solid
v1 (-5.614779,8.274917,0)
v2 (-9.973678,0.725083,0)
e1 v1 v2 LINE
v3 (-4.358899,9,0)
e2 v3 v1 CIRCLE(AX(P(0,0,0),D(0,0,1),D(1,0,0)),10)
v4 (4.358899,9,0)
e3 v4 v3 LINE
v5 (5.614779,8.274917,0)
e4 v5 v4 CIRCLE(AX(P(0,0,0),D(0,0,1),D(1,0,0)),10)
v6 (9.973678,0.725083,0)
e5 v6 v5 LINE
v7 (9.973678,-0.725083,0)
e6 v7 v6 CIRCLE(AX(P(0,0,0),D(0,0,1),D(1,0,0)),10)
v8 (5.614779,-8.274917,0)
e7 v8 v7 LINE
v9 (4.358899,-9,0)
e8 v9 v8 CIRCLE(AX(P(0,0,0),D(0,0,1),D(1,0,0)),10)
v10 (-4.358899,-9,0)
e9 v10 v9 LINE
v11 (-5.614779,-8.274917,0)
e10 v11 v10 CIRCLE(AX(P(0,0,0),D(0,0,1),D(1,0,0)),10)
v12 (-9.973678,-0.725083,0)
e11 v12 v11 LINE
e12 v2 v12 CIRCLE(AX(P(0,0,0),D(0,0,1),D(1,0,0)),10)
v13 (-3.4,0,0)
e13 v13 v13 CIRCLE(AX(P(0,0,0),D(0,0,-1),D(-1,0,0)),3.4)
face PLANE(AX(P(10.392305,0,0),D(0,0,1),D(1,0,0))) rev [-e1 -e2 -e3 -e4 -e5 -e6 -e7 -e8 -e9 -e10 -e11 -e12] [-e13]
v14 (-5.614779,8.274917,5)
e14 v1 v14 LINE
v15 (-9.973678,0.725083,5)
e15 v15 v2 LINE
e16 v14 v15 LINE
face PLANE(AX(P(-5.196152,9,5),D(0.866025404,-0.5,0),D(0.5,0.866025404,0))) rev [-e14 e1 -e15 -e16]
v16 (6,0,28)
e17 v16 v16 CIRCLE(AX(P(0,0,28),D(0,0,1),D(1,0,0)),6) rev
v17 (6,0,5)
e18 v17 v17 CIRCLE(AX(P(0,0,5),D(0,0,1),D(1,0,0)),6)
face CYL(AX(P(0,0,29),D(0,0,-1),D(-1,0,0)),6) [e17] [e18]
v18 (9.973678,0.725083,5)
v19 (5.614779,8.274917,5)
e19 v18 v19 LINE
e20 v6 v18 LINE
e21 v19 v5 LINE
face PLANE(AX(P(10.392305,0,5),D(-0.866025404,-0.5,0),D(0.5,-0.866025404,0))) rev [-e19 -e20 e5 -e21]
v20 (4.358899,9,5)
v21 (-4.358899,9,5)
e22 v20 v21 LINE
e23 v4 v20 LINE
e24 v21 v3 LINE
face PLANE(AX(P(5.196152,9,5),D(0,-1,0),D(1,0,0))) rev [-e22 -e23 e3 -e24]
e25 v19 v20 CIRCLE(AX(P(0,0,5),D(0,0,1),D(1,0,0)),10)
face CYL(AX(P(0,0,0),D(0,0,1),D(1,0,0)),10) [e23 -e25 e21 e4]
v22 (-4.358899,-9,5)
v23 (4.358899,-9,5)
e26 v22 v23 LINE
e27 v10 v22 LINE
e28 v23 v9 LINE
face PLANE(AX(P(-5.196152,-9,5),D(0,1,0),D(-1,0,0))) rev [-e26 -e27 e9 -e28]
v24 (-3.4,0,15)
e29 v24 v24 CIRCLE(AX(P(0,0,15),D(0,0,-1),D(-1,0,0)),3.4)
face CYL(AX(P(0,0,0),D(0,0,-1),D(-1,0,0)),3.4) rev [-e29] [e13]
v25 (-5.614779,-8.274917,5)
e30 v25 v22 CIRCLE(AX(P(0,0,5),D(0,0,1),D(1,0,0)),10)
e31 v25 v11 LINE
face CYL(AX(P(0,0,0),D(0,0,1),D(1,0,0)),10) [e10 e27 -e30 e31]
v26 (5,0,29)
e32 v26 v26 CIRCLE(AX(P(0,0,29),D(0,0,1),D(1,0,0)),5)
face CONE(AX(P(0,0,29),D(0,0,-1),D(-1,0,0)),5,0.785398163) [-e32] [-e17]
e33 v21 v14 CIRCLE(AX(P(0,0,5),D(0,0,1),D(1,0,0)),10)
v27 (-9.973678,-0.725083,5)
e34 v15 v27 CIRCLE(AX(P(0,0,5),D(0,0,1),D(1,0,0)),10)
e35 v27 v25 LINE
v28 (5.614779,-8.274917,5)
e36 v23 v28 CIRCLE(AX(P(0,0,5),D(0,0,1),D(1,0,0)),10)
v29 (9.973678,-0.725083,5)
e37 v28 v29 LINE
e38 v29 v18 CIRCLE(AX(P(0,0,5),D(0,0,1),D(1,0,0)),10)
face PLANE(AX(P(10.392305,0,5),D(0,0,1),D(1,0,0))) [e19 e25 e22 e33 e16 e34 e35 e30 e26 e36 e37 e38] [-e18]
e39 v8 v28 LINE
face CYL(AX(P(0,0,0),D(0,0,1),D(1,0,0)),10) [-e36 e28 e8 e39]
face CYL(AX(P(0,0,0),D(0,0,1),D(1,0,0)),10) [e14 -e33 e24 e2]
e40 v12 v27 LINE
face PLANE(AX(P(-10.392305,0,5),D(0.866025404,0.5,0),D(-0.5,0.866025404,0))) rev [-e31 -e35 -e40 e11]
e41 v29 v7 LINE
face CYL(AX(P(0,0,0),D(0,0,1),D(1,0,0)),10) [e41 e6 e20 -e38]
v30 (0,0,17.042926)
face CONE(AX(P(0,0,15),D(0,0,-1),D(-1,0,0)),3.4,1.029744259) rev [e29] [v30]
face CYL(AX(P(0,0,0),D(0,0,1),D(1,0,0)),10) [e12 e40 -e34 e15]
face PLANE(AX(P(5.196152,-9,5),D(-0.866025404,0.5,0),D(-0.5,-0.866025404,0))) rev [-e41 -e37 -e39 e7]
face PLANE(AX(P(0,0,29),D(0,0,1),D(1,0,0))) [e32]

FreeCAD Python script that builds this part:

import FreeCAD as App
import Part
import Sketcher
Q = App.Units.Quantity


def edges_at(feature, points):
    """Names of the edges that pass closest to the given points."""
    edges = feature.Shape.Edges
    near = lambda p: min(range(len(edges)), key=lambda i: edges[i].distToShape(Part.Vertex(*p))[0])
    return sorted({f"Edge{near(p) + 1}" for p in points})


def add_polygon(sketch, points):
    """Adds a closed chain of lines whose ends are joined by coincident constraints."""
    first, n = sketch.GeometryCount, len(points)
    for a, b in zip(points, points[1:] + points[:1]):
        sketch.addGeometry(Part.LineSegment(App.Vector(*a, 0), App.Vector(*b, 0)), False)
    for i in range(n):
        sketch.addConstraint(Sketcher.Constraint("Coincident", first + i, 2, first + (i + 1) % n, 1))

doc = App.newDocument("Part")
params = doc.addObject("Spreadsheet::Sheet", "Params")
for row, (alias, value) in enumerate([
    ("pad1_length", "5 mm"),
    ("sketch2_diameter", "12 mm"),
    ("pad2_length", "24 mm"),
    ("sketch3_diameter", "6.8 mm"),
    ("hole_diameter", "6.8 mm"),
    ("hole_depth", "15 mm"),
    ("sketch4_diameter", "20 mm"),
    ("chamfer_size", "1 mm"),
], start=1):
    params.set(f"A{row}", alias)
    params.set(f"B{row}", "=" + value)
    params.setAlias(f"B{row}", alias)

body = doc.addObject("PartDesign::Body", "Body")

# Sketch on XY plane
sketch1 = body.newObject("Sketcher::SketchObject", "Sketch")
sketch1.AttachmentSupport = (doc.getObject("XY_Plane"), [""])
sketch1.MapMode = "FlatFace"
add_polygon(sketch1, [(10, 0), (5, 9), (-5, 9), (-10, 0), (-5, -9), (5, -9)])  # lines 0-5
sketch1.addConstraint(Sketcher.Constraint("Horizontal", 1))
sketch1.addConstraint(Sketcher.Constraint("Horizontal", 4))
sketch1.addConstraint(Sketcher.Constraint("Symmetric", 0, 2, 3, 2, -1, 1))
sketch1.addConstraint(Sketcher.Constraint("Symmetric", 2, 2, 5, 2, -1, 1))
sketch1.addConstraint(Sketcher.Constraint("PointOnObject", 2, 2, -1))
sketch1.addConstraint(Sketcher.Constraint("Parallel", 2, 5))
sketch1.addConstraint(Sketcher.Constraint("Vertical", 1, 2, 3, 2))
sketch1.addConstraint(Sketcher.Constraint("Angle", 0, Q("120 deg")))
sketch1.addConstraint(Sketcher.Constraint("DistanceY", -1, 1, 0, 2, 9.0))
sketch1.addConstraint(Sketcher.Constraint("DistanceX", 1, 2, 1, 1, 10.392305))
pad1 = body.newObject("PartDesign::Pad", "Pad")
pad1.Profile = sketch1
pad1.setExpression("Length", "Params.pad1_length")

# Sketch on XY plane
sketch2 = body.newObject("Sketcher::SketchObject", "Sketch001")
sketch2.AttachmentSupport = (doc.getObject("XY_Plane"), [""])
sketch2.MapMode = "FlatFace"
sketch2.AttachmentOffset = App.Placement(App.Vector(0, 0, 5), App.Rotation())
sketch2.addGeometry(Part.Circle(App.Vector(0, 0, 0), App.Vector(0, 0, 1), 6), False)
sketch2.addConstraint(Sketcher.Constraint("Coincident", 0, 3, -1, 1))
sketch2.addConstraint(Sketcher.Constraint("Diameter", 0, 12.0))
sketch2.setExpression("Constraints[1]", "Params.sketch2_diameter")
pad2 = body.newObject("PartDesign::Pad", "Pad001")
pad2.Profile = sketch2
pad2.setExpression("Length", "Params.pad2_length")

# Sketch on XY plane
sketch3 = body.newObject("Sketcher::SketchObject", "Sketch002")
sketch3.AttachmentSupport = (doc.getObject("XY_Plane"), [""])
sketch3.MapMode = "FlatFace"
sketch3.addGeometry(Part.Circle(App.Vector(0, 0, 0), App.Vector(0, 0, 1), 3.4), False)
sketch3.addConstraint(Sketcher.Constraint("Coincident", 0, 3, -1, 1))
sketch3.addConstraint(Sketcher.Constraint("Diameter", 0, 6.8))
sketch3.setExpression("Constraints[1]", "Params.sketch3_diameter")
doc.recompute()
hole = body.newObject("PartDesign::Hole", "Hole")
hole.Profile = sketch3
hole.ThreadType = "None"
hole.setExpression("Diameter", "Params.hole_diameter")
hole.DepthType = "Dimension"
hole.setExpression("Depth", "Params.hole_depth")
hole.DrillPoint = "Angled"
hole.DrillPointAngle = 118
hole.Reversed = True

# Sketch on XY plane
sketch4 = body.newObject("Sketcher::SketchObject", "Sketch003")
sketch4.AttachmentSupport = (doc.getObject("XY_Plane"), [""])
sketch4.MapMode = "FlatFace"
sketch4.AttachmentOffset = App.Placement(App.Vector(0, 0, 5), App.Rotation())
add_polygon(sketch4, [(-15, 14), (-15, -14), (15, -14), (15, 14)])  # lines 0-3
sketch4.addGeometry(Part.Circle(App.Vector(0, 0, 0), App.Vector(0, 0, 1), 10), False)  # 4
sketch4.addConstraint(Sketcher.Constraint("Vertical", 0))
sketch4.addConstraint(Sketcher.Constraint("Horizontal", 1))
sketch4.addConstraint(Sketcher.Constraint("Vertical", 2))
sketch4.addConstraint(Sketcher.Constraint("Horizontal", 3))
sketch4.addConstraint(Sketcher.Constraint("Coincident", 4, 3, -1, 1))
sketch4.addConstraint(Sketcher.Constraint("Symmetric", 0, 2, 2, 2, -1, 1))
sketch4.addConstraint(Sketcher.Constraint("Diameter", 4, 20.0))
sketch4.addConstraint(Sketcher.Constraint("DistanceX", 1, 1, 1, 2, 30.776))
sketch4.addConstraint(Sketcher.Constraint("DistanceY", 0, 2, 0, 1, 27.992))
sketch4.setExpression("Constraints[10]", "Params.sketch4_diameter")
pocket1 = body.newObject("PartDesign::Pocket", "Pocket")
pocket1.Profile = sketch4
pocket1.Type = "ThroughAll"
doc.recompute()

chamfer = body.newObject("PartDesign::Chamfer", "Chamfer")
chamfer.Base = (pocket1, edges_at(pocket1, [(-6, 0, 29)]))
chamfer.setExpression("Size", "Params.chamfer_size")

doc.recompute()
